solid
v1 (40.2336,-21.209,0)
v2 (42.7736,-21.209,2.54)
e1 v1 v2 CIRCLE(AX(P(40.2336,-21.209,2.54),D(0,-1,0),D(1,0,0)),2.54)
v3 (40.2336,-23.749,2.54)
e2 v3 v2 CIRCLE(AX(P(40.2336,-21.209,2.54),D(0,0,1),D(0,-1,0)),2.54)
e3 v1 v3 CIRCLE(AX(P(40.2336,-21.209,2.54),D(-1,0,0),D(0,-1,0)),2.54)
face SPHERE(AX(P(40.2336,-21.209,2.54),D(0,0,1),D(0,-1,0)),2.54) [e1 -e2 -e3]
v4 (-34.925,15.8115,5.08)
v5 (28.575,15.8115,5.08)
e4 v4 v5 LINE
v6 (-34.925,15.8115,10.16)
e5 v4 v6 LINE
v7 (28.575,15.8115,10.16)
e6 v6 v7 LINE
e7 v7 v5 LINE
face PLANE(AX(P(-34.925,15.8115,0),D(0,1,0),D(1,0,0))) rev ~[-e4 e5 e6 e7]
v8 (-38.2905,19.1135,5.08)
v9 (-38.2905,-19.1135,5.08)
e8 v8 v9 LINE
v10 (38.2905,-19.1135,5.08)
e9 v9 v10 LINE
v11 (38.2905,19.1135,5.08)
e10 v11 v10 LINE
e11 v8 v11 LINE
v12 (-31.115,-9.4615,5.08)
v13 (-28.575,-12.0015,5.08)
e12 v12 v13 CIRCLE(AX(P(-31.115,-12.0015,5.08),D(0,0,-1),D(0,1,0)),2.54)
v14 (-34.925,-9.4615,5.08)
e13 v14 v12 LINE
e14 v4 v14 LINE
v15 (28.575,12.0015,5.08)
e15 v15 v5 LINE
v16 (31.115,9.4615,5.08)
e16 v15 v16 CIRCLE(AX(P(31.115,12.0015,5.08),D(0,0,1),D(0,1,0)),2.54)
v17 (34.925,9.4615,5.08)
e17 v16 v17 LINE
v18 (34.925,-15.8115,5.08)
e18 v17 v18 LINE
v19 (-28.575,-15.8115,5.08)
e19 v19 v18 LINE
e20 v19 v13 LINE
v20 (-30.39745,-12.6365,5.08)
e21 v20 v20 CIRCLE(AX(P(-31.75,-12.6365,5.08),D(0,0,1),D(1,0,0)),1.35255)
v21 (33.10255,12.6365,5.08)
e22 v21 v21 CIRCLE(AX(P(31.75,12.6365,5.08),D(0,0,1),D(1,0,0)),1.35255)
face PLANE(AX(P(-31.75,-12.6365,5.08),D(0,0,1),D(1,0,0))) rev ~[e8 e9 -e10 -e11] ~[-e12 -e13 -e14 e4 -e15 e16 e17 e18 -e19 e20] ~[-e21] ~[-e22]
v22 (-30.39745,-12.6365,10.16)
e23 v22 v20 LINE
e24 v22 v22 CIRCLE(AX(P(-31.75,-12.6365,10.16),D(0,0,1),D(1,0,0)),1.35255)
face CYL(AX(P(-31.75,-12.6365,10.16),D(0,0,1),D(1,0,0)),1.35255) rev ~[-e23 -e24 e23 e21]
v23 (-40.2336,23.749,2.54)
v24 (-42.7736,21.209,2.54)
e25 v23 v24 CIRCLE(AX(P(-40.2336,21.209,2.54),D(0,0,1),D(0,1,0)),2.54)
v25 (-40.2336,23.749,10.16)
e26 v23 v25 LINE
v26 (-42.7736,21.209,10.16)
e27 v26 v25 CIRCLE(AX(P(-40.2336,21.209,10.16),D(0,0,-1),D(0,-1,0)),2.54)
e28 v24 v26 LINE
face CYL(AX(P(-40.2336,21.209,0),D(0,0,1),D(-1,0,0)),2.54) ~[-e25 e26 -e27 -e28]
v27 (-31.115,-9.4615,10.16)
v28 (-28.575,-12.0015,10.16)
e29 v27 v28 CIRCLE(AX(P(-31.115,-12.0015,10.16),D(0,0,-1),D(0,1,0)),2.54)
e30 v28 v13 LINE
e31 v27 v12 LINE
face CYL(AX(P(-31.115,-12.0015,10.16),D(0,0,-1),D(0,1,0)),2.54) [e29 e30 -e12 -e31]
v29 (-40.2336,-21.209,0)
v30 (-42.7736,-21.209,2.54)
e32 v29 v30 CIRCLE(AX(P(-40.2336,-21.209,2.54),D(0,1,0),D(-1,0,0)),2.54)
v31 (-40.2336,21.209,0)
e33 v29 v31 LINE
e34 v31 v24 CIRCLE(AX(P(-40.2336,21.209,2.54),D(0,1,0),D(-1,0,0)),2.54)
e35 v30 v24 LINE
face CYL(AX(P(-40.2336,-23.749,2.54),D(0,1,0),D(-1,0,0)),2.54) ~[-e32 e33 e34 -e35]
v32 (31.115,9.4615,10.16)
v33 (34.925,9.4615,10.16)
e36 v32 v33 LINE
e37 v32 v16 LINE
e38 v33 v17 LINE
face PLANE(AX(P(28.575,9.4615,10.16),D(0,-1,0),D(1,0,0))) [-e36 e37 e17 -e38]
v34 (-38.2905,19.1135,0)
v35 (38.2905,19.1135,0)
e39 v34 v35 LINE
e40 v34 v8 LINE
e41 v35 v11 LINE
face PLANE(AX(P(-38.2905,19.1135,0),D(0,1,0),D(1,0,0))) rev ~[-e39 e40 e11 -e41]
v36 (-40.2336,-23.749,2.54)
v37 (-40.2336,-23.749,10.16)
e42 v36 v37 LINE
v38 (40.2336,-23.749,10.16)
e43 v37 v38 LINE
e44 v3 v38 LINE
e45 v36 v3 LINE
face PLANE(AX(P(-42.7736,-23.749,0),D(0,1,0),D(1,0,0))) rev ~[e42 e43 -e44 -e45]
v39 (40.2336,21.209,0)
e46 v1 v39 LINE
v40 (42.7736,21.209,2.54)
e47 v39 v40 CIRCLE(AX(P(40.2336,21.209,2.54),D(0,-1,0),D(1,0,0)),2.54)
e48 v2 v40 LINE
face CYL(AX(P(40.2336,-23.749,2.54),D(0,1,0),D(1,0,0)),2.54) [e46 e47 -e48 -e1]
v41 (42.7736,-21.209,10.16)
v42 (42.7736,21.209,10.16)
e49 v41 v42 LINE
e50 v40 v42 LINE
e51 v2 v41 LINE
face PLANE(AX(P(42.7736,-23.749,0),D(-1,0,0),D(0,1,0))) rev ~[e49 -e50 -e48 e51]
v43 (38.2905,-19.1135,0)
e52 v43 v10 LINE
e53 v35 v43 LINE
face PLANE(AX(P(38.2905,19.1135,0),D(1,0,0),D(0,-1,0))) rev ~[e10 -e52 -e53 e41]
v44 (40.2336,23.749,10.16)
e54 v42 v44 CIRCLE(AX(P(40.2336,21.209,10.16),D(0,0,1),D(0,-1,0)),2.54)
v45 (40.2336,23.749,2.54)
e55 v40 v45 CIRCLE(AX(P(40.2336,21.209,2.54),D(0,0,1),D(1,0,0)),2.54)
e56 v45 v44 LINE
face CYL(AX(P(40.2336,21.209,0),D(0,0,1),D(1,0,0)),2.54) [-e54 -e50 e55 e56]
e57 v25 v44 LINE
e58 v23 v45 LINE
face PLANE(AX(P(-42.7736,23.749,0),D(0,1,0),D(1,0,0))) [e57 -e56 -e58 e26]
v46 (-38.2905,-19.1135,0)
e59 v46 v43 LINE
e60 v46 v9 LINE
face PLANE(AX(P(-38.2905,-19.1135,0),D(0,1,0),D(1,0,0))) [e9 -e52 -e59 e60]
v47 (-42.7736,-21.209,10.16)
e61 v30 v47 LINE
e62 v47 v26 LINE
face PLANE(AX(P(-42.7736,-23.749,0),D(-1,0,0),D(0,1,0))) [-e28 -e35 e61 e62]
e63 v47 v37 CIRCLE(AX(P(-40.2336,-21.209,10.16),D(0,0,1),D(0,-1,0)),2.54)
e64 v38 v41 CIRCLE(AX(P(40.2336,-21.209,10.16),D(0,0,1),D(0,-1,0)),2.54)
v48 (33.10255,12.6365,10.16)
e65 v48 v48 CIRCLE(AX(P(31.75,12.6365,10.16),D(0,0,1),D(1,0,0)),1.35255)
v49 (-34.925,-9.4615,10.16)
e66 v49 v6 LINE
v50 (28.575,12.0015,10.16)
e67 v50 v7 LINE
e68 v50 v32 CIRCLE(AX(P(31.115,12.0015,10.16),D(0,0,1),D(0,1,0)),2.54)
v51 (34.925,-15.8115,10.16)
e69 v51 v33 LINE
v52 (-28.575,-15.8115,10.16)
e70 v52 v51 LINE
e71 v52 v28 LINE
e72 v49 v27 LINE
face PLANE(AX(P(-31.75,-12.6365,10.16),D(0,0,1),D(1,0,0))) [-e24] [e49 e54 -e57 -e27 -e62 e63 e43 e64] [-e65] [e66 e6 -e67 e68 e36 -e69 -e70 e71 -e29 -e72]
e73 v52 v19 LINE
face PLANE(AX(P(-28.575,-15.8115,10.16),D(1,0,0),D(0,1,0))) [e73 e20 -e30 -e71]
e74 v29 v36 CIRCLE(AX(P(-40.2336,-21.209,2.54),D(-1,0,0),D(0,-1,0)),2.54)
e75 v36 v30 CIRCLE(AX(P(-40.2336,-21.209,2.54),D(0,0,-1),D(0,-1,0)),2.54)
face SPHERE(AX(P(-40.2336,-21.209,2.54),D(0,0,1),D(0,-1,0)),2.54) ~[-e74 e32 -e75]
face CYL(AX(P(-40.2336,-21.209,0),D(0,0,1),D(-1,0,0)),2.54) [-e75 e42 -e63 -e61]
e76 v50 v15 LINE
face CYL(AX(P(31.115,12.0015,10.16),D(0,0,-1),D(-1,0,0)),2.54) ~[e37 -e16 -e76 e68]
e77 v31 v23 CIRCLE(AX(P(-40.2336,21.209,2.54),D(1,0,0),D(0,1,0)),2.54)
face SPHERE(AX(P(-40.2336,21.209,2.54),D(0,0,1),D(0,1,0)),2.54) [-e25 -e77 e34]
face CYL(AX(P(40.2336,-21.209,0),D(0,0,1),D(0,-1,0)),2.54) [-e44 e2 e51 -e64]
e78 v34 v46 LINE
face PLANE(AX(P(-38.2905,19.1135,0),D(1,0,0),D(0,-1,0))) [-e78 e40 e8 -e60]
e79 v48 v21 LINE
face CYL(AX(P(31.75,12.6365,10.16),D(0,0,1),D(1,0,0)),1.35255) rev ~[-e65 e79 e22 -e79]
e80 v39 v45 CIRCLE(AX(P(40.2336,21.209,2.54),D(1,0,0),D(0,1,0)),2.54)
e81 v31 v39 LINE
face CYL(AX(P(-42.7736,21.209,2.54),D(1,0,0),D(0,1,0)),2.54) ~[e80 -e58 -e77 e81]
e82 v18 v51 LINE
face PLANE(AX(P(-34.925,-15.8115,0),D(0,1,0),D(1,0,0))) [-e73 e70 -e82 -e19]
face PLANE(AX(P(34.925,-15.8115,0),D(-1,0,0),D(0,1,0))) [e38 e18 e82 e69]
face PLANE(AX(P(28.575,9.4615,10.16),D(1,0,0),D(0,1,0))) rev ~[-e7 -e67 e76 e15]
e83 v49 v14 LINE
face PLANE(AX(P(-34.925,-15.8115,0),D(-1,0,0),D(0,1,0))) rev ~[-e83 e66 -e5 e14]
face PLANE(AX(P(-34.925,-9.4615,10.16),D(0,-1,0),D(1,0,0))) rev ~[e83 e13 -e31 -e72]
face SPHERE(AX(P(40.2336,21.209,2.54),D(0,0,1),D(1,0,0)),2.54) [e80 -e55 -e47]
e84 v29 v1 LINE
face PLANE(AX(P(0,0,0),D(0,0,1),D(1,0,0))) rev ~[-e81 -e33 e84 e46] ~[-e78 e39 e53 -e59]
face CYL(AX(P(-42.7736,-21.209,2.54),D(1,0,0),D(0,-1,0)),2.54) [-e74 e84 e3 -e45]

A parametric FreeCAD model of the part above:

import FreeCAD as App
import Part
import Sketcher

V = App.Vector
Q = App.Units.Quantity


def edges_at(feature, points):
    """Names of the edges that pass closest to the given points."""
    edges = feature.Shape.Edges
    near = lambda p: min(range(len(edges)), key=lambda i: edges[i].distToShape(Part.Vertex(*p))[0])
    return sorted({f"Edge{near(p) + 1}" for p in points})


def add_polygon(sketch, points):
    """Adds a closed chain of lines whose ends are joined by coincident constraints."""
    first, n = sketch.GeometryCount, len(points)
    for a, b in zip(points, points[1:] + points[:1]):
        sketch.addGeometry(Part.LineSegment(App.Vector(*a, 0), App.Vector(*b, 0)), False)
    for i in range(n):
        sketch.addConstraint(Sketcher.Constraint("Coincident", first + i, 2, first + (i + 1) % n, 1))

doc = App.newDocument("Part")
body = doc.addObject("PartDesign::Body", "Body")

sketch1 = body.newObject("Sketcher::SketchObject", "Sketch")
sketch1.AttachmentSupport = (doc.getObject("XY_Plane"), [""])
sketch1.MapMode = "FlatFace"
add_polygon(sketch1, [(-43, 24), (-43, -24), (43, -24), (43, 24)])
add_polygon(sketch1, [(35, -16), (-35, -16), (-35, 16), (35, 16)])
sketch1.addConstraint([
    Sketcher.Constraint("Vertical", 0),
    Sketcher.Constraint("Horizontal", 1),
    Sketcher.Constraint("Vertical", 2),
    Sketcher.Constraint("Horizontal", 3),
    Sketcher.Constraint("Horizontal", 4),
    Sketcher.Constraint("Vertical", 5),
    Sketcher.Constraint("Horizontal", 6),
    Sketcher.Constraint("Vertical", 7),
    Sketcher.Constraint("Symmetric", 0, 2, 2, 2, -1, 1),
    Sketcher.Constraint("Symmetric", 4, 2, 6, 2, -1, 1),
    Sketcher.Constraint("DistanceX", 4, 2, 4, 1, Q("2.75 in")),
    Sketcher.Constraint("DistanceY", 0, 2, 0, 1, Q("1.87 in")),
    Sketcher.Constraint("DistanceX", 1, 1, 1, 2, Q("3.368 in")),
    Sketcher.Constraint("DistanceY", 5, 1, 5, 2, Q("1.245 in")),
])
pad1 = body.newObject("PartDesign::Pad", "Pad")
pad1.Profile = sketch1
pad1.Length = Q("0.4 in")

sketch2 = body.newObject("Sketcher::SketchObject", "Sketch001")
sketch2.AttachmentSupport = (doc.getObject("XY_Plane"), [""])
sketch2.MapMode = "FlatFace"
sketch2.AttachmentOffset = App.Placement(V(0, 0, 0.4 * 25.4), App.Rotation())
add_polygon(sketch2, [(-34.9, -9.5), (-34.9, -15.8), (-28.6, -15.8), (-28.6, -9.5)])
sketch2.addGeometry(Part.Circle(V(-31.8, -12.6, 0), V(0, 0, 1), 1.4), False)
add_polygon(sketch2, [(28.6, 15.8), (28.6, 9.5), (34.9, 9.5), (34.9, 15.8)])
sketch2.addGeometry(Part.Circle(V(31.8, 12.6, 0), V(0, 0, 1), 1.4), False)
sketch2.addConstraint([
    Sketcher.Constraint("Vertical", 0),
    Sketcher.Constraint("Horizontal", 1),
    Sketcher.Constraint("Vertical", 2),
    Sketcher.Constraint("Horizontal", 3),
    Sketcher.Constraint("Vertical", 5),
    Sketcher.Constraint("Horizontal", 6),
    Sketcher.Constraint("Vertical", 7),
    Sketcher.Constraint("Horizontal", 8),
    Sketcher.Constraint("Equal", 4, 9),
    Sketcher.Constraint("Symmetric", 4, 3, 9, 3, -1, 1),
    Sketcher.Constraint("Symmetric", 2, 2, 5, 2, -1, 1),
    Sketcher.Constraint("Symmetric", 0, 2, 7, 2, -1, 1),
    Sketcher.Constraint("Equal", 8, 0),
    Sketcher.Constraint("Diameter", 4, Q("0.1065 in")),
    Sketcher.Constraint("DistanceX", 1, 1, 1, 2, Q("0.25 in")),
    Sketcher.Constraint("DistanceX", 4, 3, 9, 3, Q("2.5 in")),
    Sketcher.Constraint("DistanceX", 3, 2, 5, 2, Q("2.5 in")),
    Sketcher.Constraint("DistanceY", 0, 2, 9, 3, Q("1.12 in")),
    Sketcher.Constraint("DistanceY", 4, 3, 9, 3, Q("0.995 in")),
])
pad2 = body.newObject("PartDesign::Pad", "Pad001")
pad2.Profile = sketch2
pad2.Length = Q("0.2 in")
pad2.Reversed = True
doc.recompute()

fillet = body.newObject("PartDesign::Fillet", "Fillet")
fillet.Base = (pad2, edges_at(pad2, [(28.575, 9.461, 7.62), (-28.575, -9.461, 7.62)]))
fillet.Radius = Q("0.1 in")

sketch3 = body.newObject("Sketcher::SketchObject", "Sketch002")
sketch3.AttachmentSupport = (doc.getObject("XY_Plane"), [""])
sketch3.MapMode = "FlatFace"
add_polygon(sketch3, [(-38, -19), (-38, 19), (38, 19), (38, -19)])
add_polygon(sketch3, [(35, 16), (-35, 16), (-35, -16), (35, -16)])
sketch3.addConstraint([
    Sketcher.Constraint("Vertical", 0),
    Sketcher.Constraint("Horizontal", 1),
    Sketcher.Constraint("Vertical", 2),
    Sketcher.Constraint("Horizontal", 3),
    Sketcher.Constraint("Horizontal", 4),
    Sketcher.Constraint("Vertical", 5),
    Sketcher.Constraint("Horizontal", 6),
    Sketcher.Constraint("Vertical", 7),
    Sketcher.Constraint("Symmetric", 0, 2, 2, 2, -1, 1),
    Sketcher.Constraint("Symmetric", 4, 2, 6, 2, -1, 1),
    Sketcher.Constraint("DistanceX", 4, 2, 4, 1, Q("2.75 in")),
    Sketcher.Constraint("DistanceX", 1, 1, 1, 2, Q("3.015 in")),
    Sketcher.Constraint("DistanceY", 0, 1, 0, 2, Q("1.505 in")),
    Sketcher.Constraint("DistanceY", 5, 2, 5, 1, Q("1.245 in")),
])
pocket1 = body.newObject("PartDesign::Pocket", "Pocket")
pocket1.Profile = sketch3
pocket1.Length = Q("0.2 in")
pocket1.Reversed = True
doc.recompute()

fillet2 = body.newObject("PartDesign::Fillet", "Fillet001")
fillet2.Base = (pocket1, edges_at(pocket1, [
    (42.774, -23.749, 5.08),
    (42.774, 23.749, 5.08),
    (-42.774, -23.749, 5.08),
    (-42.774, 23.749, 5.08),
    (0, -23.749, 0),
    (42.774, 0, 0),
    (0, 23.749, 0),
    (-42.774, 0, 0),
]))
fillet2.Radius = Q("0.1 in")

doc.recompute()
